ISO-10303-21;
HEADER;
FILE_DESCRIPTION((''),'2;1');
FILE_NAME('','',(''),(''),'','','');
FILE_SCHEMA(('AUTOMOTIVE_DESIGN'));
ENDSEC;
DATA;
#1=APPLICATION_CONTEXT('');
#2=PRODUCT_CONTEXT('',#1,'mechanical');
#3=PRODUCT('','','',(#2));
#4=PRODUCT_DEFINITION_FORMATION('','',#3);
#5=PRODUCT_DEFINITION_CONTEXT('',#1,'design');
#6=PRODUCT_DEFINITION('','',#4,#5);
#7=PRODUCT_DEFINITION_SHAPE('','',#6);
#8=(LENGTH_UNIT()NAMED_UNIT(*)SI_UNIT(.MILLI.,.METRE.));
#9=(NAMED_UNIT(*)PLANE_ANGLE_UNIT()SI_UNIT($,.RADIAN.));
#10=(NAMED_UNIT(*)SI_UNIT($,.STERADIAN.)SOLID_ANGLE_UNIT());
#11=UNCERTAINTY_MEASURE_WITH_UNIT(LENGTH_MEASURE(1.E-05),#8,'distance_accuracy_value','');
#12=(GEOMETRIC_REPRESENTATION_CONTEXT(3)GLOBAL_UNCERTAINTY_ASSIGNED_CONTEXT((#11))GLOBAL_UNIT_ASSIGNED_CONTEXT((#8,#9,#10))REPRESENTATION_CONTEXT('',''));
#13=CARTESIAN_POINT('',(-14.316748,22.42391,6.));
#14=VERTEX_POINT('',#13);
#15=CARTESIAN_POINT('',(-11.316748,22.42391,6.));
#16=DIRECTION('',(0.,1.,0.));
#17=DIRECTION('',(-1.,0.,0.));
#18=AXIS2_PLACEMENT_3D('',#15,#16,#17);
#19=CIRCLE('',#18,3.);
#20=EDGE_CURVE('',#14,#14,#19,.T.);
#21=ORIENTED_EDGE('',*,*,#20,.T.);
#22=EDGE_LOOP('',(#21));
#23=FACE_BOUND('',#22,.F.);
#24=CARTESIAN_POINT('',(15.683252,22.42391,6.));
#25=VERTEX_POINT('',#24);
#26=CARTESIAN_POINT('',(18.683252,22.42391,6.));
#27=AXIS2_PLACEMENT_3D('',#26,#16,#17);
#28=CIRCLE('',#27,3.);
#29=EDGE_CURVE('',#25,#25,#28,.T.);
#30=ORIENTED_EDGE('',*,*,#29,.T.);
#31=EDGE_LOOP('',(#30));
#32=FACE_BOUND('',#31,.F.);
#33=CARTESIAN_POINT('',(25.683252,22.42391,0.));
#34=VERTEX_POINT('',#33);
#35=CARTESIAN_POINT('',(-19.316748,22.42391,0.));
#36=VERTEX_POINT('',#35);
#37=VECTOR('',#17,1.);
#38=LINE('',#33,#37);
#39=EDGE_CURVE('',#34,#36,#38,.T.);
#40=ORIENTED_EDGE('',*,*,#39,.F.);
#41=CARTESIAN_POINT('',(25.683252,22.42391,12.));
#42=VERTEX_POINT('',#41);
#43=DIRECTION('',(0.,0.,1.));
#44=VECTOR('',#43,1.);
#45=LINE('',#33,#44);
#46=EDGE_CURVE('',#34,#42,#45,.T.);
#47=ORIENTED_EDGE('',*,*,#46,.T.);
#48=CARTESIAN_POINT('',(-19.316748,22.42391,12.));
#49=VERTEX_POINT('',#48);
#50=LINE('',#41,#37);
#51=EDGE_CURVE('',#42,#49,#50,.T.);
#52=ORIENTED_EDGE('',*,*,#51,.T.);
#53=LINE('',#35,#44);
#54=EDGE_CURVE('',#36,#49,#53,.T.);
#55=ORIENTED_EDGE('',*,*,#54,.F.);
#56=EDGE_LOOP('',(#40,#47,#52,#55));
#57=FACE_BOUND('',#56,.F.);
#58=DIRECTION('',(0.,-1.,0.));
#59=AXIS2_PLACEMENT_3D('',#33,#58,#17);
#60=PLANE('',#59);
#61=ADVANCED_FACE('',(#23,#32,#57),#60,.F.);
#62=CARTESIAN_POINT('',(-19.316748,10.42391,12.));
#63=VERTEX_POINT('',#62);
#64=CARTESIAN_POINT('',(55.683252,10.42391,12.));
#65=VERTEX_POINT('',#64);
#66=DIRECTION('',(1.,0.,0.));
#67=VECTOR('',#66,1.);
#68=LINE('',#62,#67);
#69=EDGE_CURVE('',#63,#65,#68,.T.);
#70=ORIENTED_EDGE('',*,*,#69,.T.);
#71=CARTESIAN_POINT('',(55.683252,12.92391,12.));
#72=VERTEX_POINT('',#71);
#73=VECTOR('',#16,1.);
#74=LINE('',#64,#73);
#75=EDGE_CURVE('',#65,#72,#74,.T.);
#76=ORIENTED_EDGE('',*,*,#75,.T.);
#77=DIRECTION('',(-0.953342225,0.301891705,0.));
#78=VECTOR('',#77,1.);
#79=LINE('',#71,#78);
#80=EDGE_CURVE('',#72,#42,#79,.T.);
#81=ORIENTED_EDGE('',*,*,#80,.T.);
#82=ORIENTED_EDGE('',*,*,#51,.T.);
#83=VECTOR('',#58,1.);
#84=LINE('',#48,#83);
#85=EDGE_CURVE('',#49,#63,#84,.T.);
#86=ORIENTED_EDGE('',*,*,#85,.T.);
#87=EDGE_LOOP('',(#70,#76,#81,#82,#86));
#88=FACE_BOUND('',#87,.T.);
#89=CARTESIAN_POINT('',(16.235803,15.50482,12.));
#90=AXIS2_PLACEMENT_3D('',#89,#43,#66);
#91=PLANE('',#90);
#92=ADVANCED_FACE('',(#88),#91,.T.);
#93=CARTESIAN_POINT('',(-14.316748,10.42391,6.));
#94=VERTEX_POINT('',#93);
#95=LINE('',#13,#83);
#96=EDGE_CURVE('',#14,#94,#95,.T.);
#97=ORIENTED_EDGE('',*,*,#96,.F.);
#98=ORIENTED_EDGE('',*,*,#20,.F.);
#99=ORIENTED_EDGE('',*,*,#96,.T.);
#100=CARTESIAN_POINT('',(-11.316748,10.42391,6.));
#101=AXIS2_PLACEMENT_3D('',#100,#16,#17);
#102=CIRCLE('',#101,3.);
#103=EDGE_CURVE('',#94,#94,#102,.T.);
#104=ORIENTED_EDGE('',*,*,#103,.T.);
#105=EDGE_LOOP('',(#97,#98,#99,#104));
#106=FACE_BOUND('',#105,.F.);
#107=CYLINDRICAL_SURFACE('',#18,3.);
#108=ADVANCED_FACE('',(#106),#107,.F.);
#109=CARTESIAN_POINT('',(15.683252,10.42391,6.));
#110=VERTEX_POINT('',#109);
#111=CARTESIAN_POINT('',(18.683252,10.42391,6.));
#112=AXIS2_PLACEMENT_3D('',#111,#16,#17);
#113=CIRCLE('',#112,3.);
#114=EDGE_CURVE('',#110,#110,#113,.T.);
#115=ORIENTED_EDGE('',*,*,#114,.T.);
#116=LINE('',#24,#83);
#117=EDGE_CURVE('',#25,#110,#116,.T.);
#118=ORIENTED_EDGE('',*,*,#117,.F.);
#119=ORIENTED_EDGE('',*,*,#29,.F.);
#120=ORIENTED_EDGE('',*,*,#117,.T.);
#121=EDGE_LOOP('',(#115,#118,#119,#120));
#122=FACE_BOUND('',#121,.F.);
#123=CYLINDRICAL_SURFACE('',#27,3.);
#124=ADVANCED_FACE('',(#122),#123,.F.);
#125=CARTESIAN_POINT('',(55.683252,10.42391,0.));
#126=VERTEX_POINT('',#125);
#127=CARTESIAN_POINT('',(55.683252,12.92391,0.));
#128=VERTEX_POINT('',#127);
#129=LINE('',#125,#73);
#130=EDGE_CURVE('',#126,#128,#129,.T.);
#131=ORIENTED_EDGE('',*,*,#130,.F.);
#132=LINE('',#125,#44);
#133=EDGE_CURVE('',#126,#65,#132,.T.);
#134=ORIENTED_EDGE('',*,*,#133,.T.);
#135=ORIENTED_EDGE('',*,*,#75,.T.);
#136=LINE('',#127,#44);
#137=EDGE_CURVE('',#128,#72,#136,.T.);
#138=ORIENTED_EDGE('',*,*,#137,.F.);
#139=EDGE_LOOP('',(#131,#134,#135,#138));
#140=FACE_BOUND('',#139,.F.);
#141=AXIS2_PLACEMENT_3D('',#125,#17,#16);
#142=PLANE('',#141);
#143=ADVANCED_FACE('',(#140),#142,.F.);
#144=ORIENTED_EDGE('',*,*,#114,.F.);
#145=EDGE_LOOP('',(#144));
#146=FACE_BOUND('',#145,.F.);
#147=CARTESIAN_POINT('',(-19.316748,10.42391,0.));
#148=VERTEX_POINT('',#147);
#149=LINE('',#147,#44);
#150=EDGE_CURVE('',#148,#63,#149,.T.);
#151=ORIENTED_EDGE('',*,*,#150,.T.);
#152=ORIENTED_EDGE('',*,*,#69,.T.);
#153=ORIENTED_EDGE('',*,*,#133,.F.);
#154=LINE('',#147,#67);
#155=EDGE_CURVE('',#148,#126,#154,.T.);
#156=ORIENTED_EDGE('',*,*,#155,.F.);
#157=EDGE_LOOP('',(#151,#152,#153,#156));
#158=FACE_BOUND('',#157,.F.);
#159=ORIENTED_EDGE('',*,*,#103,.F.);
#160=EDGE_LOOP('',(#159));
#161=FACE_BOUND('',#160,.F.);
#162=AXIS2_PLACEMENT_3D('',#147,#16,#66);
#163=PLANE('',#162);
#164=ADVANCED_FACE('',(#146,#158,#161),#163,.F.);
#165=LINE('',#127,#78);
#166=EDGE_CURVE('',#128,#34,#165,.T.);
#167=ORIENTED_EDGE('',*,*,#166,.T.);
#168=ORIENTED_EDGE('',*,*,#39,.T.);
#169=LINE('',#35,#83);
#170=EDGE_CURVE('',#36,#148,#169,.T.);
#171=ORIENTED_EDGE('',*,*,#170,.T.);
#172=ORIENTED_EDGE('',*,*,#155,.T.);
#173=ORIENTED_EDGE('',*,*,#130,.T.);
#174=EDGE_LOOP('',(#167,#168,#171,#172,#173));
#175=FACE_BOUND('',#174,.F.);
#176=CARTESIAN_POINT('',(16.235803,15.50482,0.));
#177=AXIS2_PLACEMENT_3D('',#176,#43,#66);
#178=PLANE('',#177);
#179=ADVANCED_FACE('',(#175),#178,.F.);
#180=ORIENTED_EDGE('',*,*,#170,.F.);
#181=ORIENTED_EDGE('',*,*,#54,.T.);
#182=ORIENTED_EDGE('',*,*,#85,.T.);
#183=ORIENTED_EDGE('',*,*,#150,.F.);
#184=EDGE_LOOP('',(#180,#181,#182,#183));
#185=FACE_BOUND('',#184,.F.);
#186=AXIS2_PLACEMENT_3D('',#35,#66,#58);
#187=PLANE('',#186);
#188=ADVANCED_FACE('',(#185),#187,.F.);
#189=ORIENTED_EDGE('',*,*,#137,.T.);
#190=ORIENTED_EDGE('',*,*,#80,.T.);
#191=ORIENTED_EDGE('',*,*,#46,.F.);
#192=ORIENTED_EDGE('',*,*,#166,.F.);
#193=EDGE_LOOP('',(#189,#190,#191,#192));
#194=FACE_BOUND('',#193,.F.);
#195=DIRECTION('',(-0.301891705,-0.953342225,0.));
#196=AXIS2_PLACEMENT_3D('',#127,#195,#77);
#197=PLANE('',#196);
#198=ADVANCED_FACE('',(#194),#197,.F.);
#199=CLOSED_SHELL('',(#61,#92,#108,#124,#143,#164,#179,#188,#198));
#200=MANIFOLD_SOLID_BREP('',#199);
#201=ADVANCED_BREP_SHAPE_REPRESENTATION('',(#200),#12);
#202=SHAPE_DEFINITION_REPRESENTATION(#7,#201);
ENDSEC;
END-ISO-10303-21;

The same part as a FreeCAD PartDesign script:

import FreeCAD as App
import Part
import Sketcher

doc = App.newDocument("Part")
params = doc.addObject("Spreadsheet::Sheet", "Params")
for row, (alias, value) in enumerate([
    ("sketch1_width", "45 mm"),
    ("sketch1_width2", "75 mm"),
    ("sketch1_height", "12 mm"),
    ("sketch1_height2", "2.5 mm"),
    ("pad1_length", "12 mm"),
    ("sketch2_diameter", "6 mm"),
], start=1):
    params.set(f"A{row}", alias)
    params.set(f"B{row}", "=" + value)
    params.setAlias(f"B{row}", alias)

body = doc.addObject("PartDesign::Body", "Body")

sketch1 = doc.addObject("Sketcher::SketchObject", "Sketch")
body.addObject(sketch1)
sketch1.AttachmentSupport = (doc.XY_Plane, [""])
sketch1.MapMode = "FlatFace"
sketch1.addGeometry([
    Part.LineSegment(App.Vector(25.683252, 22.42391, 0), App.Vector(-19.316748, 22.42391, 0)),
    Part.LineSegment(App.Vector(-19.316748, 22.42391, 0), App.Vector(-19.316748, 10.42391, 0)),
    Part.LineSegment(App.Vector(-19.316748, 10.42391, 0), App.Vector(55.683252, 10.42391, 0)),
    Part.LineSegment(App.Vector(55.683252, 10.42391, 0), App.Vector(55.683252, 12.92391, 0)),
    Part.LineSegment(App.Vector(55.683252, 12.92391, 0), App.Vector(25.683252, 22.42391, 0)),
], False)
sketch1.addConstraint([
    Sketcher.Constraint("Coincident", 0, 2, 1, 1),
    Sketcher.Constraint("Coincident", 1, 2, 2, 1),
    Sketcher.Constraint("Coincident", 2, 2, 3, 1),
    Sketcher.Constraint("Coincident", 3, 2, 4, 1),
    Sketcher.Constraint("Coincident", 4, 2, 0, 1),
    Sketcher.Constraint("Horizontal", 0),
    Sketcher.Constraint("Vertical", 1),
    Sketcher.Constraint("Horizontal", 2),
    Sketcher.Constraint("Vertical", 3),
    Sketcher.Constraint("DistanceX", 0, 2, 0, 1, 45.0),
    Sketcher.Constraint("DistanceX", 2, 1, 2, 2, 75.0),
    Sketcher.Constraint("DistanceY", 1, 2, 1, 1, 12.0),
    Sketcher.Constraint("DistanceY", 3, 1, 3, 2, 2.5),
    Sketcher.Constraint("DistanceX", 0, 2, -1, 1, 19.316748),
    Sketcher.Constraint("DistanceY", -1, 1, 0, 2, 22.42391),
])
sketch1.setExpression("Constraints[9]", "Params.sketch1_width")
sketch1.setExpression("Constraints[10]", "Params.sketch1_width2")
sketch1.setExpression("Constraints[11]", "Params.sketch1_height")
sketch1.setExpression("Constraints[12]", "Params.sketch1_height2")
pad1 = doc.addObject("PartDesign::Pad", "Pad")
body.addObject(pad1)
pad1.Profile = sketch1
pad1.setExpression("Length", "Params.pad1_length")

sketch2 = doc.addObject("Sketcher::SketchObject", "Sketch001")
body.addObject(sketch2)
sketch2.AttachmentSupport = (doc.XZ_Plane, [""])
sketch2.MapMode = "FlatFace"
sketch2.AttachmentOffset = App.Placement(App.Vector(0, 0, -22.42391), App.Rotation())
sketch2.addGeometry([
    Part.Circle(App.Vector(18.683252, 6, 0), App.Vector(0, 0, 1), 3),
    Part.Circle(App.Vector(-11.316748, 6, 0), App.Vector(0, 0, 1), 3),
], False)
sketch2.addConstraint([
    Sketcher.Constraint("Equal", 0, 1),
    Sketcher.Constraint("Horizontal", 0, 3, 1, 3),
    Sketcher.Constraint("Diameter", 0, 6.0),
    Sketcher.Constraint("DistanceY", -1, 1, 0, 3, 6.0),
    Sketcher.Constraint("DistanceX", 1, 3, 0, 3, 30.0),
    Sketcher.Constraint("DistanceX", -1, 1, 0, 3, 18.683252),
])
sketch2.setExpression("Constraints[2]", "Params.sketch2_diameter")
pocket1 = doc.addObject("PartDesign::Pocket", "Pocket")
body.addObject(pocket1)
pocket1.Profile = sketch2
pocket1.Type = "ThroughAll"
pocket1.Reversed = True

doc.recompute()
